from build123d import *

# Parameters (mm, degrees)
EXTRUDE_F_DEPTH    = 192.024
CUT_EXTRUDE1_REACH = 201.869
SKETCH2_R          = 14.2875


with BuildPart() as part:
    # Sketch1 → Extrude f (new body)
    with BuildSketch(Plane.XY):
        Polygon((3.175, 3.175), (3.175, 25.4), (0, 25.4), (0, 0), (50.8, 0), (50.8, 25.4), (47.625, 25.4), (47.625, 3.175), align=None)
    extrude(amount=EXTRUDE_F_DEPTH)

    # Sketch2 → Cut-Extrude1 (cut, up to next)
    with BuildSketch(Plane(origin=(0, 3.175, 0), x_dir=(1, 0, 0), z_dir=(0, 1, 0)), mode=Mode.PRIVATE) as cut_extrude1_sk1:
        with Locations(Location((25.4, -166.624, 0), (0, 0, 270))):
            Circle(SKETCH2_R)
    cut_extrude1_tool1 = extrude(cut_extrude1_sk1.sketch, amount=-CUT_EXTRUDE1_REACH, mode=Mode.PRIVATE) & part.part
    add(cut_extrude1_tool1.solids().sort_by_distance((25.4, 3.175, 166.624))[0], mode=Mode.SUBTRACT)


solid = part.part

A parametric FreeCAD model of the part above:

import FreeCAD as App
import Part
import Sketcher

V = App.Vector
Q = App.Units.Quantity


def add_polygon(sketch, points):
    """Adds a closed chain of lines whose ends are joined by coincident constraints."""
    first, n = sketch.GeometryCount, len(points)
    for a, b in zip(points, points[1:] + points[:1]):
        sketch.addGeometry(Part.LineSegment(App.Vector(*a, 0), App.Vector(*b, 0)), False)
    for i in range(n):
        sketch.addConstraint(Sketcher.Constraint("Coincident", first + i, 2, first + (i + 1) % n, 1))

doc = App.newDocument("Part")
body = doc.addObject("PartDesign::Body", "Body")

sketch1 = body.newObject("Sketcher::SketchObject", "Sketch")
sketch1.AttachmentSupport = (doc.getObject("XY_Plane"), [""])
sketch1.MapMode = "FlatFace"
add_polygon(sketch1, [(3.175, 3.175), (3.175, 25.4), (0, 25.4), (0, 0), (50.8, 0), (50.8, 25.4), (47.625, 25.4), (47.625, 3.175)])
sketch1.addConstraint([
    Sketcher.Constraint("Vertical", 0),
    Sketcher.Constraint("Horizontal", 1),
    Sketcher.Constraint("Vertical", 2),
    Sketcher.Constraint("Horizontal", 3),
    Sketcher.Constraint("Vertical", 4),
    Sketcher.Constraint("Horizontal", 5),
    Sketcher.Constraint("Vertical", 6),
    Sketcher.Constraint("Horizontal", 7),
    Sketcher.Constraint("Coincident", 2, 2, -1, 1),
    Sketcher.Constraint("Horizontal", 1, 2, 4, 2),
    Sketcher.Constraint("Equal", 1, 5),
    Sketcher.Constraint("DistanceX", 3, 1, 3, 2, Q("2 in")),
    Sketcher.Constraint("DistanceY", 2, 2, 2, 1, Q("1 in")),
    Sketcher.Constraint("DistanceX", 7, 2, 7, 1, Q("1.75 in")),
    Sketcher.Constraint("DistanceY", 0, 1, 0, 2, Q("0.875 in")),
])
pad1 = body.newObject("PartDesign::Pad", "Pad")
pad1.Profile = sketch1
pad1.Length = Q("7.56 in")

sketch2 = body.newObject("Sketcher::SketchObject", "Sketch001")
sketch2.AttachmentSupport = (doc.getObject("XZ_Plane"), [""])
sketch2.MapMode = "FlatFace"
sketch2.AttachmentOffset = App.Placement(V(0, 0, -0.125 * 25.4), App.Rotation())
sketch2.addGeometry(Part.Circle(V(25.4, 166.624, 0), V(0, 0, 1), 14.2875), False)
sketch2.addConstraint([
    Sketcher.Constraint("Diameter", 0, Q("1.125 in")),
    Sketcher.Constraint("DistanceX", -1, 1, 0, 3, Q("1 in")),
    Sketcher.Constraint("DistanceY", -1, 1, 0, 3, Q("6.56 in")),
])
pocket1 = body.newObject("PartDesign::Pocket", "Pocket")
pocket1.Profile = sketch2
pocket1.Type = "UpToFirst"
pocket1.Reversed = True

doc.recompute()
